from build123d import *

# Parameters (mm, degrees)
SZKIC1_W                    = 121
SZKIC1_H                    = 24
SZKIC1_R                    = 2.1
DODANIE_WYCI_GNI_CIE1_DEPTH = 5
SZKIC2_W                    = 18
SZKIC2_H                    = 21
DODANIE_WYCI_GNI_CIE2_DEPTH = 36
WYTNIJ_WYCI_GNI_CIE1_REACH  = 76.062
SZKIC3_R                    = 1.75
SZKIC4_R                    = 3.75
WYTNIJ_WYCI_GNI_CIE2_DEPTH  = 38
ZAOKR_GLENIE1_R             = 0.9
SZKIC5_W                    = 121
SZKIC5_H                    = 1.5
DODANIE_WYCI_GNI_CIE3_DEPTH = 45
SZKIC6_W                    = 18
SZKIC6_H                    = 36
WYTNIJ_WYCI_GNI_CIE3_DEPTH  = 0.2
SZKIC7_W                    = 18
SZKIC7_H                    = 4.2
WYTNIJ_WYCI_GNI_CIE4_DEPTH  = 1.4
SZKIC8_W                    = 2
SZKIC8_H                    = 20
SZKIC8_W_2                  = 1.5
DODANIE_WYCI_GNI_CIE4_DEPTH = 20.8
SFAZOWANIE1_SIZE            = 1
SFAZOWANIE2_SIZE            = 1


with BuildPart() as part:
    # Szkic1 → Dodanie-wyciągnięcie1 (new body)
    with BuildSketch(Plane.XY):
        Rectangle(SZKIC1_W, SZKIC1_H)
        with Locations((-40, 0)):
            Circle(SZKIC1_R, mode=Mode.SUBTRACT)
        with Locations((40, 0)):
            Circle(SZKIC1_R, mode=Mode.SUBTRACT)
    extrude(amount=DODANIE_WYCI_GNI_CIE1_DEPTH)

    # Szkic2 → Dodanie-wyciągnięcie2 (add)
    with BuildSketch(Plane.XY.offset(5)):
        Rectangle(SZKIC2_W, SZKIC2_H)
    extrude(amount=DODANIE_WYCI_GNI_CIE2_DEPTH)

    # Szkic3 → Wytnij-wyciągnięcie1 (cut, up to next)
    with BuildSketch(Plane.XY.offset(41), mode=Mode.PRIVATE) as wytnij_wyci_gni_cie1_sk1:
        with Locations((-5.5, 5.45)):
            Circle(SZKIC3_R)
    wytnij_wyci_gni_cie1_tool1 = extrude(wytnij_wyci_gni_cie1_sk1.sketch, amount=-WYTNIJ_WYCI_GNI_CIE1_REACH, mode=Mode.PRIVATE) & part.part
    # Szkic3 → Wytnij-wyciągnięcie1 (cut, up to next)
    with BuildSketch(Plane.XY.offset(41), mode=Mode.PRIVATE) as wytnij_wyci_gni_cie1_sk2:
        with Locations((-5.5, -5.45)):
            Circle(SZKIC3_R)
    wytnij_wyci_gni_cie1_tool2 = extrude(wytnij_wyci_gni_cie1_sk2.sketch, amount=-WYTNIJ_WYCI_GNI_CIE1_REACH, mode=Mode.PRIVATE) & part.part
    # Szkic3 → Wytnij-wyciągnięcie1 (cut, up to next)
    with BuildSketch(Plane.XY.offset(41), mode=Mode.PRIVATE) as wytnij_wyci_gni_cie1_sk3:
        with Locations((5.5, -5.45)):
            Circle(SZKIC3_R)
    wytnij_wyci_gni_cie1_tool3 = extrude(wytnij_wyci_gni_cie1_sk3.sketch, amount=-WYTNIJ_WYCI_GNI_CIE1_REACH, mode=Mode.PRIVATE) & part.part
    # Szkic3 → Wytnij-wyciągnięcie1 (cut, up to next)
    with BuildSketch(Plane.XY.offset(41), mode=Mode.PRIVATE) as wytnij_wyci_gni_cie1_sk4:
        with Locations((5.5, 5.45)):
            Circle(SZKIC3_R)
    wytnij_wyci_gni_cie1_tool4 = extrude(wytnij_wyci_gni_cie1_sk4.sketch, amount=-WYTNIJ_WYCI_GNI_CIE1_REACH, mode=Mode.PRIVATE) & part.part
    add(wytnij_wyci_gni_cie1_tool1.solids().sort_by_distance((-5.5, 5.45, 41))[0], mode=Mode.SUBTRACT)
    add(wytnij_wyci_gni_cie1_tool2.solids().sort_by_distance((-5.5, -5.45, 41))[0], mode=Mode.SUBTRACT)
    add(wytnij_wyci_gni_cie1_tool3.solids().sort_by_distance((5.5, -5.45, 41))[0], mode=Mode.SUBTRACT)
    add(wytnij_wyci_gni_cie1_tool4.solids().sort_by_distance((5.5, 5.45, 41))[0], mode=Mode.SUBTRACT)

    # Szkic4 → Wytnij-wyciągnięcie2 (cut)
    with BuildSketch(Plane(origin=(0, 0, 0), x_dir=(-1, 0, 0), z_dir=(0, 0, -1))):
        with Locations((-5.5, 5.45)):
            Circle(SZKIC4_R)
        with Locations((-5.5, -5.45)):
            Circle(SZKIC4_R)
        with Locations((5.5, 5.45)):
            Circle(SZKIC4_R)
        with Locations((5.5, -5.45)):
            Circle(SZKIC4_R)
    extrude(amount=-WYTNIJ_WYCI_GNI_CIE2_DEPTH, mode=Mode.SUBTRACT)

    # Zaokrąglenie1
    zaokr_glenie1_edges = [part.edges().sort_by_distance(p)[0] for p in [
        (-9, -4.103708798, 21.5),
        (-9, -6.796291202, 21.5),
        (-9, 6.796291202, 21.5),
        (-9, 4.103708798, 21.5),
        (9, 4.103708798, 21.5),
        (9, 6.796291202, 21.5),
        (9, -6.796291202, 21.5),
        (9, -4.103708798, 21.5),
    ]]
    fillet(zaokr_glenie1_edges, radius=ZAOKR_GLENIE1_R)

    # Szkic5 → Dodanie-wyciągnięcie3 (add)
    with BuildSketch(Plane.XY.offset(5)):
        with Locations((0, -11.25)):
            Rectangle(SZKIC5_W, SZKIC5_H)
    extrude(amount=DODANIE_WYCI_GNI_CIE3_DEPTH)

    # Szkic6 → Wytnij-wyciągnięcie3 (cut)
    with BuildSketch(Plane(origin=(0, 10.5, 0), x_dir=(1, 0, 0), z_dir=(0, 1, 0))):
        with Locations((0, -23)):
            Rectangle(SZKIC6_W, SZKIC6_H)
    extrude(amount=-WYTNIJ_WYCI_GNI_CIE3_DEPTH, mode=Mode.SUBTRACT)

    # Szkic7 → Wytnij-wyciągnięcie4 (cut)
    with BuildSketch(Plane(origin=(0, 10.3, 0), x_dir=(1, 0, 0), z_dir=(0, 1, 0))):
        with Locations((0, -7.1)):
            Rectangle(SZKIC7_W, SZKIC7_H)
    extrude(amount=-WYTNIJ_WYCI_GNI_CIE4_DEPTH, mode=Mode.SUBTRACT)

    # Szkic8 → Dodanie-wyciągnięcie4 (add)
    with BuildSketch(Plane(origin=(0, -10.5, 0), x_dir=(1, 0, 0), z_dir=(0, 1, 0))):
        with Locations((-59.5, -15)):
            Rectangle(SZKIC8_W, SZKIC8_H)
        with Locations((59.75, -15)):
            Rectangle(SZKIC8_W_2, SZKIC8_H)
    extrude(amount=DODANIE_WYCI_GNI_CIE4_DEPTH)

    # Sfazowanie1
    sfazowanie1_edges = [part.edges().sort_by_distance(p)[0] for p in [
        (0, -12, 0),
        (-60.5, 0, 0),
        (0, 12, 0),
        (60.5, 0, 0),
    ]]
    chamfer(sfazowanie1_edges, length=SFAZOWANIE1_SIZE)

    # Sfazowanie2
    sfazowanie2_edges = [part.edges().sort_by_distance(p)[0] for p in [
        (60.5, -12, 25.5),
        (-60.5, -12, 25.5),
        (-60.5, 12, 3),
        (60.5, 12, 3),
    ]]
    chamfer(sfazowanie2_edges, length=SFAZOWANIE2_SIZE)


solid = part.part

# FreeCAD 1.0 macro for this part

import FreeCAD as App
import Part
import Sketcher
Q = App.Units.Quantity


def edges_at(feature, points):
    """Names of the edges that pass closest to the given points."""
    edges = feature.Shape.Edges
    near = lambda p: min(range(len(edges)), key=lambda i: edges[i].distToShape(Part.Vertex(*p))[0])
    return sorted({f"Edge{near(p) + 1}" for p in points})

doc = App.newDocument("Part")
params = doc.addObject("Spreadsheet::Sheet", "Params")
for row, (alias, value) in enumerate([
    ("sketch1_diameter", "4.2 mm"),
    ("sketch1_width", "121 mm"),
    ("sketch1_height", "24 mm"),
    ("pad1_length", "5 mm"),
    ("sketch2_width", "18 mm"),
    ("sketch2_height", "21 mm"),
    ("pad2_length", "36 mm"),
    ("sketch3_diameter", "3.5 mm"),
    ("sketch4_diameter", "3.5 mm"),
    ("sketch5_diameter", "3.5 mm"),
    ("sketch6_diameter", "3.5 mm"),
    ("sketch7_diameter", "7.5 mm"),
    ("pocket5_length", "38 mm"),
    ("fillet_radius", "0.9 mm"),
    ("sketch8_width", "121 mm"),
    ("sketch8_height", "1.5 mm"),
    ("pad3_length", "45 mm"),
    ("sketch9_width", "18 mm"),
    ("sketch9_height", "36 mm"),
    ("pocket6_length", "0.2 mm"),
    ("sketch10_width", "18 mm"),
    ("sketch10_height", "4.2 mm"),
    ("pocket7_length", "1.4 mm"),
    ("sketch11_width", "2 mm"),
    ("sketch11_height", "20 mm"),
    ("sketch11_width2", "1.5 mm"),
    ("pad4_length", "20.8 mm"),
    ("chamfer_size", "1 mm"),
    ("chamfer2_size", "1 mm"),
], start=1):
    params.set(f"A{row}", alias)
    params.set(f"B{row}", "=" + value)
    params.setAlias(f"B{row}", alias)

body = doc.addObject("PartDesign::Body", "Body")

# Sketch on XY plane
sketch1 = body.newObject("Sketcher::SketchObject", "Sketch")
sketch1.AttachmentSupport = (doc.getObject("XY_Plane"), [""])
sketch1.MapMode = "FlatFace"
sketch1.addGeometry(Part.LineSegment(App.Vector(-60.5, 12, 0), App.Vector(-60.5, -12, 0)), False)
sketch1.addGeometry(Part.LineSegment(App.Vector(-60.5, -12, 0), App.Vector(60.5, -12, 0)), False)
sketch1.addGeometry(Part.LineSegment(App.Vector(60.5, -12, 0), App.Vector(60.5, 12, 0)), False)
sketch1.addGeometry(Part.LineSegment(App.Vector(60.5, 12, 0), App.Vector(-60.5, 12, 0)), False)
sketch1.addGeometry(Part.Circle(App.Vector(-40, 0, 0), App.Vector(0, 0, 1), 2.1), False)
sketch1.addGeometry(Part.Circle(App.Vector(40, 0, 0), App.Vector(0, 0, 1), 2.1), False)
sketch1.addConstraint(Sketcher.Constraint("Coincident", 0, 2, 1, 1))
sketch1.addConstraint(Sketcher.Constraint("Coincident", 1, 2, 2, 1))
sketch1.addConstraint(Sketcher.Constraint("Coincident", 2, 2, 3, 1))
sketch1.addConstraint(Sketcher.Constraint("Coincident", 3, 2, 0, 1))
sketch1.addConstraint(Sketcher.Constraint("Vertical", 0))
sketch1.addConstraint(Sketcher.Constraint("Horizontal", 1))
sketch1.addConstraint(Sketcher.Constraint("Vertical", 2))
sketch1.addConstraint(Sketcher.Constraint("Horizontal", 3))
sketch1.addConstraint(Sketcher.Constraint("Equal", 4, 5))
sketch1.addConstraint(Sketcher.Constraint("Symmetric", 4, 3, 5, 3, -1, 1))
sketch1.addConstraint(Sketcher.Constraint("Symmetric", 0, 2, 2, 2, -1, 1))
sketch1.addConstraint(Sketcher.Constraint("PointOnObject", 4, 3, -1))
sketch1.addConstraint(Sketcher.Constraint("Diameter", 4, Q("4.2 mm")))
sketch1.addConstraint(Sketcher.Constraint("DistanceX", 1, 1, 1, 2, Q("121 mm")))
sketch1.addConstraint(Sketcher.Constraint("DistanceY", 0, 2, 0, 1, Q("24 mm")))
sketch1.addConstraint(Sketcher.Constraint("DistanceX", 4, 3, -1, 1, Q("40 mm")))
sketch1.setExpression("Constraints[12]", "Params.sketch1_diameter")
sketch1.setExpression("Constraints[13]", "Params.sketch1_width")
sketch1.setExpression("Constraints[14]", "Params.sketch1_height")
pad1 = body.newObject("PartDesign::Pad", "Pad")
pad1.Profile = sketch1
pad1.setExpression("Length", "Params.pad1_length")

# Sketch on XY plane
sketch2 = body.newObject("Sketcher::SketchObject", "Sketch001")
sketch2.AttachmentSupport = (doc.getObject("XY_Plane"), [""])
sketch2.MapMode = "FlatFace"
sketch2.AttachmentOffset = App.Placement(App.Vector(0, 0, 5), App.Rotation())
sketch2.addGeometry(Part.LineSegment(App.Vector(-9, 10, 0), App.Vector(-9, -10, 0)), False)
sketch2.addGeometry(Part.LineSegment(App.Vector(-9, -10, 0), App.Vector(9, -10, 0)), False)
sketch2.addGeometry(Part.LineSegment(App.Vector(9, -10, 0), App.Vector(9, 10, 0)), False)
sketch2.addGeometry(Part.LineSegment(App.Vector(9, 10, 0), App.Vector(-9, 10, 0)), False)
sketch2.addConstraint(Sketcher.Constraint("Coincident", 0, 2, 1, 1))
sketch2.addConstraint(Sketcher.Constraint("Coincident", 1, 2, 2, 1))
sketch2.addConstraint(Sketcher.Constraint("Coincident", 2, 2, 3, 1))
sketch2.addConstraint(Sketcher.Constraint("Coincident", 3, 2, 0, 1))
sketch2.addConstraint(Sketcher.Constraint("Vertical", 0))
sketch2.addConstraint(Sketcher.Constraint("Horizontal", 1))
sketch2.addConstraint(Sketcher.Constraint("Vertical", 2))
sketch2.addConstraint(Sketcher.Constraint("Horizontal", 3))
sketch2.addConstraint(Sketcher.Constraint("Symmetric", 0, 2, 2, 2, -1, 1))
sketch2.addConstraint(Sketcher.Constraint("DistanceX", 1, 1, 1, 2, Q("18 mm")))
sketch2.addConstraint(Sketcher.Constraint("DistanceY", 0, 2, 0, 1, Q("21 mm")))
sketch2.setExpression("Constraints[9]", "Params.sketch2_width")
sketch2.setExpression("Constraints[10]", "Params.sketch2_height")
pad2 = body.newObject("PartDesign::Pad", "Pad001")
pad2.Profile = sketch2
pad2.setExpression("Length", "Params.pad2_length")

# Sketch on XY plane
sketch3 = body.newObject("Sketcher::SketchObject", "Sketch002")
sketch3.AttachmentSupport = (doc.getObject("XY_Plane"), [""])
sketch3.MapMode = "FlatFace"
sketch3.AttachmentOffset = App.Placement(App.Vector(0, 0, 41), App.Rotation())
sketch3.addGeometry(Part.Circle(App.Vector(-5.5, 5.5, 0), App.Vector(0, 0, 1), 1.8), False)
sketch3.addConstraint(Sketcher.Constraint("Diameter", 0, Q("3.5 mm")))
sketch3.addConstraint(Sketcher.Constraint("DistanceX", 0, 3, -1, 1, Q("5.5 mm")))
sketch3.addConstraint(Sketcher.Constraint("DistanceY", -1, 1, 0, 3, Q("5.45 mm")))
sketch3.setExpression("Constraints[0]", "Params.sketch3_diameter")
pocket1 = body.newObject("PartDesign::Pocket", "Pocket")
pocket1.Profile = sketch3
pocket1.Type = "UpToFirst"

# Sketch on XY plane
sketch4 = body.newObject("Sketcher::SketchObject", "Sketch003")
sketch4.AttachmentSupport = (doc.getObject("XY_Plane"), [""])
sketch4.MapMode = "FlatFace"
sketch4.AttachmentOffset = App.Placement(App.Vector(0, 0, 41), App.Rotation())
sketch4.addGeometry(Part.Circle(App.Vector(-5.5, -5.5, 0), App.Vector(0, 0, 1), 1.8), False)
sketch4.addConstraint(Sketcher.Constraint("Diameter", 0, Q("3.5 mm")))
sketch4.addConstraint(Sketcher.Constraint("DistanceX", 0, 3, -1, 1, Q("5.5 mm")))
sketch4.addConstraint(Sketcher.Constraint("DistanceY", 0, 3, -1, 1, Q("5.45 mm")))
sketch4.setExpression("Constraints[0]", "Params.sketch4_diameter")
pocket2 = body.newObject("PartDesign::Pocket", "Pocket001")
pocket2.Profile = sketch4
pocket2.Type = "UpToFirst"

# Sketch on XY plane
sketch5 = body.newObject("Sketcher::SketchObject", "Sketch004")
sketch5.AttachmentSupport = (doc.getObject("XY_Plane"), [""])
sketch5.MapMode = "FlatFace"
sketch5.AttachmentOffset = App.Placement(App.Vector(0, 0, 41), App.Rotation())
sketch5.addGeometry(Part.Circle(App.Vector(5.5, -5.5, 0), App.Vector(0, 0, 1), 1.8), False)
sketch5.addConstraint(Sketcher.Constraint("Diameter", 0, Q("3.5 mm")))
sketch5.addConstraint(Sketcher.Constraint("DistanceX", -1, 1, 0, 3, Q("5.5 mm")))
sketch5.addConstraint(Sketcher.Constraint("DistanceY", 0, 3, -1, 1, Q("5.45 mm")))
sketch5.setExpression("Constraints[0]", "Params.sketch5_diameter")
pocket3 = body.newObject("PartDesign::Pocket", "Pocket002")
pocket3.Profile = sketch5
pocket3.Type = "UpToFirst"

# Sketch on XY plane
sketch6 = body.newObject("Sketcher::SketchObject", "Sketch005")
sketch6.AttachmentSupport = (doc.getObject("XY_Plane"), [""])
sketch6.MapMode = "FlatFace"
sketch6.AttachmentOffset = App.Placement(App.Vector(0, 0, 41), App.Rotation())
sketch6.addGeometry(Part.Circle(App.Vector(5.5, 5.5, 0), App.Vector(0, 0, 1), 1.8), False)
sketch6.addConstraint(Sketcher.Constraint("Diameter", 0, Q("3.5 mm")))
sketch6.addConstraint(Sketcher.Constraint("DistanceX", -1, 1, 0, 3, Q("5.5 mm")))
sketch6.addConstraint(Sketcher.Constraint("DistanceY", -1, 1, 0, 3, Q("5.45 mm")))
sketch6.setExpression("Constraints[0]", "Params.sketch6_diameter")
pocket4 = body.newObject("PartDesign::Pocket", "Pocket003")
pocket4.Profile = sketch6
pocket4.Type = "UpToFirst"

# Sketch on XY plane
sketch7 = body.newObject("Sketcher::SketchObject", "Sketch006")
sketch7.AttachmentSupport = (doc.getObject("XY_Plane"), [""])
sketch7.MapMode = "FlatFace"
sketch7.addGeometry(Part.Circle(App.Vector(5.5, 5.5, 0), App.Vector(0, 0, 1), 3.8), False)
sketch7.addGeometry(Part.Circle(App.Vector(5.5, -5.5, 0), App.Vector(0, 0, 1), 3.8), False)
sketch7.addGeometry(Part.Circle(App.Vector(-5.5, 5.5, 0), App.Vector(0, 0, 1), 3.8), False)
sketch7.addGeometry(Part.Circle(App.Vector(-5.5, -5.5, 0), App.Vector(0, 0, 1), 3.8), False)
sketch7.addConstraint(Sketcher.Constraint("Equal", 0, 1))
sketch7.addConstraint(Sketcher.Constraint("Equal", 1, 2))
sketch7.addConstraint(Sketcher.Constraint("Equal", 2, 3))
sketch7.addConstraint(Sketcher.Constraint("Symmetric", 1, 3, 2, 3, -1, 1))
sketch7.addConstraint(Sketcher.Constraint("Symmetric", 0, 3, 3, 3, -1, 1))
sketch7.addConstraint(Sketcher.Constraint("Symmetric", 0, 3, 2, 3, -2))
sketch7.addConstraint(Sketcher.Constraint("Diameter", 0, Q("7.5 mm")))
sketch7.addConstraint(Sketcher.Constraint("DistanceX", 2, 3, 0, 3, Q("11 mm")))
sketch7.addConstraint(Sketcher.Constraint("DistanceY", 1, 3, 0, 3, Q("10.9 mm")))
sketch7.setExpression("Constraints[6]", "Params.sketch7_diameter")
pocket5 = body.newObject("PartDesign::Pocket", "Pocket004")
pocket5.Profile = sketch7
pocket5.setExpression("Length", "Params.pocket5_length")
pocket5.Reversed = True
doc.recompute()

fillet = body.newObject("PartDesign::Fillet", "Fillet")
fillet.Base = (pocket5, edges_at(pocket5, [
    (-9, -4.104, 21.5),
    (-9, -6.796, 21.5),
    (-9, 6.796, 21.5),
    (-9, 4.104, 21.5),
    (9, 4.104, 21.5),
    (9, 6.796, 21.5),
    (9, -6.796, 21.5),
    (9, -4.104, 21.5),
]))
fillet.setExpression("Radius", "Params.fillet_radius")

# Sketch on XY plane
sketch8 = body.newObject("Sketcher::SketchObject", "Sketch007")
sketch8.AttachmentSupport = (doc.getObject("XY_Plane"), [""])
sketch8.MapMode = "FlatFace"
sketch8.AttachmentOffset = App.Placement(App.Vector(0, 0, 5), App.Rotation())
sketch8.addGeometry(Part.LineSegment(App.Vector(-60.5, -10.5, 0), App.Vector(-60.5, -12, 0)), False)
sketch8.addGeometry(Part.LineSegment(App.Vector(-60.5, -12, 0), App.Vector(60.5, -12, 0)), False)
sketch8.addGeometry(Part.LineSegment(App.Vector(60.5, -12, 0), App.Vector(60.5, -10.5, 0)), False)
sketch8.addGeometry(Part.LineSegment(App.Vector(60.5, -10.5, 0), App.Vector(-60.5, -10.5, 0)), False)
sketch8.addConstraint(Sketcher.Constraint("Coincident", 0, 2, 1, 1))
sketch8.addConstraint(Sketcher.Constraint("Coincident", 1, 2, 2, 1))
sketch8.addConstraint(Sketcher.Constraint("Coincident", 2, 2, 3, 1))
sketch8.addConstraint(Sketcher.Constraint("Coincident", 3, 2, 0, 1))
sketch8.addConstraint(Sketcher.Constraint("Vertical", 0))
sketch8.addConstraint(Sketcher.Constraint("Horizontal", 1))
sketch8.addConstraint(Sketcher.Constraint("Vertical", 2))
sketch8.addConstraint(Sketcher.Constraint("Horizontal", 3))
sketch8.addConstraint(Sketcher.Constraint("DistanceX", 1, 1, 1, 2, Q("121 mm")))
sketch8.addConstraint(Sketcher.Constraint("DistanceY", 0, 2, 0, 1, Q("1.5 mm")))
sketch8.addConstraint(Sketcher.Constraint("DistanceY", 0, 2, -1, 1, Q("12 mm")))
sketch8.addConstraint(Sketcher.Constraint("DistanceX", 0, 2, -1, 1, Q("60.5 mm")))
sketch8.setExpression("Constraints[8]", "Params.sketch8_width")
sketch8.setExpression("Constraints[9]", "Params.sketch8_height")
pad3 = body.newObject("PartDesign::Pad", "Pad002")
pad3.Profile = sketch8
pad3.setExpression("Length", "Params.pad3_length")

# Sketch on XZ plane
sketch9 = body.newObject("Sketcher::SketchObject", "Sketch008")
sketch9.AttachmentSupport = (doc.getObject("XZ_Plane"), [""])
sketch9.MapMode = "FlatFace"
sketch9.AttachmentOffset = App.Placement(App.Vector(0, 0, -10.5), App.Rotation())
sketch9.addGeometry(Part.LineSegment(App.Vector(-9, 5, 0), App.Vector(-9, 41, 0)), False)
sketch9.addGeometry(Part.LineSegment(App.Vector(-9, 41, 0), App.Vector(9, 41, 0)), False)
sketch9.addGeometry(Part.LineSegment(App.Vector(9, 41, 0), App.Vector(9, 5, 0)), False)
sketch9.addGeometry(Part.LineSegment(App.Vector(9, 5, 0), App.Vector(-9, 5, 0)), False)
sketch9.addConstraint(Sketcher.Constraint("Coincident", 0, 2, 1, 1))
sketch9.addConstraint(Sketcher.Constraint("Coincident", 1, 2, 2, 1))
sketch9.addConstraint(Sketcher.Constraint("Coincident", 2, 2, 3, 1))
sketch9.addConstraint(Sketcher.Constraint("Coincident", 3, 2, 0, 1))
sketch9.addConstraint(Sketcher.Constraint("Vertical", 0))
sketch9.addConstraint(Sketcher.Constraint("Horizontal", 1))
sketch9.addConstraint(Sketcher.Constraint("Vertical", 2))
sketch9.addConstraint(Sketcher.Constraint("Horizontal", 3))
sketch9.addConstraint(Sketcher.Constraint("DistanceX", 1, 1, 1, 2, Q("18 mm")))
sketch9.addConstraint(Sketcher.Constraint("DistanceY", 0, 1, 0, 2, Q("36 mm")))
sketch9.addConstraint(Sketcher.Constraint("DistanceX", 0, 2, -1, 1, Q("9 mm")))
sketch9.addConstraint(Sketcher.Constraint("DistanceY", -1, 1, 0, 2, Q("41 mm")))
sketch9.setExpression("Constraints[8]", "Params.sketch9_width")
sketch9.setExpression("Constraints[9]", "Params.sketch9_height")
pocket6 = body.newObject("PartDesign::Pocket", "Pocket005")
pocket6.Profile = sketch9
pocket6.setExpression("Length", "Params.pocket6_length")
pocket6.Reversed = True

# Sketch on XZ plane
sketch10 = body.newObject("Sketcher::SketchObject", "Sketch009")
sketch10.AttachmentSupport = (doc.getObject("XZ_Plane"), [""])
sketch10.MapMode = "FlatFace"
sketch10.AttachmentOffset = App.Placement(App.Vector(0, 0, -10.3), App.Rotation())
sketch10.addGeometry(Part.LineSegment(App.Vector(-9, 5, 0), App.Vector(-9, 9.2, 0)), False)
sketch10.addGeometry(Part.LineSegment(App.Vector(-9, 9.2, 0), App.Vector(9, 9.2, 0)), False)
sketch10.addGeometry(Part.LineSegment(App.Vector(9, 9.2, 0), App.Vector(9, 5, 0)), False)
sketch10.addGeometry(Part.LineSegment(App.Vector(9, 5, 0), App.Vector(-9, 5, 0)), False)
sketch10.addConstraint(Sketcher.Constraint("Coincident", 0, 2, 1, 1))
sketch10.addConstraint(Sketcher.Constraint("Coincident", 1, 2, 2, 1))
sketch10.addConstraint(Sketcher.Constraint("Coincident", 2, 2, 3, 1))
sketch10.addConstraint(Sketcher.Constraint("Coincident", 3, 2, 0, 1))
sketch10.addConstraint(Sketcher.Constraint("Vertical", 0))
sketch10.addConstraint(Sketcher.Constraint("Horizontal", 1))
sketch10.addConstraint(Sketcher.Constraint("Vertical", 2))
sketch10.addConstraint(Sketcher.Constraint("Horizontal", 3))
sketch10.addConstraint(Sketcher.Constraint("DistanceX", 1, 1, 1, 2, Q("18 mm")))
sketch10.addConstraint(Sketcher.Constraint("DistanceY", 0, 1, 0, 2, Q("4.2 mm")))
sketch10.addConstraint(Sketcher.Constraint("DistanceX", 0, 2, -1, 1, Q("9 mm")))
sketch10.addConstraint(Sketcher.Constraint("DistanceY", -1, 1, 2, 2, Q("5 mm")))
sketch10.setExpression("Constraints[8]", "Params.sketch10_width")
sketch10.setExpression("Constraints[9]", "Params.sketch10_height")
pocket7 = body.newObject("PartDesign::Pocket", "Pocket006")
pocket7.Profile = sketch10
pocket7.setExpression("Length", "Params.pocket7_length")
pocket7.Reversed = True

# Sketch on XZ plane
sketch11 = body.newObject("Sketcher::SketchObject", "Sketch010")
sketch11.AttachmentSupport = (doc.getObject("XZ_Plane"), [""])
sketch11.MapMode = "FlatFace"
sketch11.AttachmentOffset = App.Placement(App.Vector(0, 0, 10.5), App.Rotation())
sketch11.addGeometry(Part.LineSegment(App.Vector(-60.5, 5, 0), App.Vector(-60.5, 25, 0)), False)
sketch11.addGeometry(Part.LineSegment(App.Vector(-60.5, 25, 0), App.Vector(-58.5, 25, 0)), False)
sketch11.addGeometry(Part.LineSegment(App.Vector(-58.5, 25, 0), App.Vector(-58.5, 5, 0)), False)
sketch11.addGeometry(Part.LineSegment(App.Vector(-58.5, 5, 0), App.Vector(-60.5, 5, 0)), False)
sketch11.addGeometry(Part.LineSegment(App.Vector(59, 5, 0), App.Vector(59, 25, 0)), False)
sketch11.addGeometry(Part.LineSegment(App.Vector(59, 25, 0), App.Vector(60.5, 25, 0)), False)
sketch11.addGeometry(Part.LineSegment(App.Vector(60.5, 25, 0), App.Vector(60.5, 5, 0)), False)
sketch11.addGeometry(Part.LineSegment(App.Vector(60.5, 5, 0), App.Vector(59, 5, 0)), False)
sketch11.addConstraint(Sketcher.Constraint("Coincident", 0, 2, 1, 1))
sketch11.addConstraint(Sketcher.Constraint("Coincident", 1, 2, 2, 1))
sketch11.addConstraint(Sketcher.Constraint("Coincident", 2, 2, 3, 1))
sketch11.addConstraint(Sketcher.Constraint("Coincident", 3, 2, 0, 1))
sketch11.addConstraint(Sketcher.Constraint("Coincident", 4, 2, 5, 1))
sketch11.addConstraint(Sketcher.Constraint("Coincident", 5, 2, 6, 1))
sketch11.addConstraint(Sketcher.Constraint("Coincident", 6, 2, 7, 1))
sketch11.addConstraint(Sketcher.Constraint("Coincident", 7, 2, 4, 1))
sketch11.addConstraint(Sketcher.Constraint("Vertical", 0))
sketch11.addConstraint(Sketcher.Constraint("Horizontal", 1))
sketch11.addConstraint(Sketcher.Constraint("Vertical", 2))
sketch11.addConstraint(Sketcher.Constraint("Horizontal", 3))
sketch11.addConstraint(Sketcher.Constraint("Vertical", 4))
sketch11.addConstraint(Sketcher.Constraint("Horizontal", 5))
sketch11.addConstraint(Sketcher.Constraint("Vertical", 6))
sketch11.addConstraint(Sketcher.Constraint("Horizontal", 7))
sketch11.addConstraint(Sketcher.Constraint("Symmetric", 0, 2, 5, 2, -2))
sketch11.addConstraint(Sketcher.Constraint("Horizontal", 3, 2, 6, 2))
sketch11.addConstraint(Sketcher.Constraint("DistanceX", 1, 1, 1, 2, Q("2 mm")))
sketch11.addConstraint(Sketcher.Constraint("DistanceY", 0, 1, 0, 2, Q("20 mm")))
sketch11.addConstraint(Sketcher.Constraint("DistanceX", 5, 1, 5, 2, Q("1.5 mm")))
sketch11.addConstraint(Sketcher.Constraint("DistanceY", -1, 1, 0, 2, Q("25 mm")))
sketch11.addConstraint(Sketcher.Constraint("DistanceX", -1, 1, 4, 2, Q("59 mm")))
sketch11.setExpression("Constraints[18]", "Params.sketch11_width")
sketch11.setExpression("Constraints[19]", "Params.sketch11_height")
sketch11.setExpression("Constraints[20]", "Params.sketch11_width2")
pad4 = body.newObject("PartDesign::Pad", "Pad003")
pad4.Profile = sketch11
pad4.setExpression("Length", "Params.pad4_length")
pad4.Reversed = True
doc.recompute()

chamfer = body.newObject("PartDesign::Chamfer", "Chamfer")
chamfer.Base = (pad4, edges_at(pad4, [
    (0, -12, 0),
    (-60.5, 0, 0),
    (0, 12, 0),
    (60.5, 0, 0),
]))
chamfer.setExpression("Size", "Params.chamfer_size")
doc.recompute()

chamfer2 = body.newObject("PartDesign::Chamfer", "Chamfer001")
chamfer2.Base = (chamfer, edges_at(chamfer, [
    (60.5, -12, 25.5),
    (-60.5, -12, 25.5),
    (-60.5, 12, 3),
    (60.5, 12, 3),
]))
chamfer2.setExpression("Size", "Params.chamfer2_size")

doc.recompute()
